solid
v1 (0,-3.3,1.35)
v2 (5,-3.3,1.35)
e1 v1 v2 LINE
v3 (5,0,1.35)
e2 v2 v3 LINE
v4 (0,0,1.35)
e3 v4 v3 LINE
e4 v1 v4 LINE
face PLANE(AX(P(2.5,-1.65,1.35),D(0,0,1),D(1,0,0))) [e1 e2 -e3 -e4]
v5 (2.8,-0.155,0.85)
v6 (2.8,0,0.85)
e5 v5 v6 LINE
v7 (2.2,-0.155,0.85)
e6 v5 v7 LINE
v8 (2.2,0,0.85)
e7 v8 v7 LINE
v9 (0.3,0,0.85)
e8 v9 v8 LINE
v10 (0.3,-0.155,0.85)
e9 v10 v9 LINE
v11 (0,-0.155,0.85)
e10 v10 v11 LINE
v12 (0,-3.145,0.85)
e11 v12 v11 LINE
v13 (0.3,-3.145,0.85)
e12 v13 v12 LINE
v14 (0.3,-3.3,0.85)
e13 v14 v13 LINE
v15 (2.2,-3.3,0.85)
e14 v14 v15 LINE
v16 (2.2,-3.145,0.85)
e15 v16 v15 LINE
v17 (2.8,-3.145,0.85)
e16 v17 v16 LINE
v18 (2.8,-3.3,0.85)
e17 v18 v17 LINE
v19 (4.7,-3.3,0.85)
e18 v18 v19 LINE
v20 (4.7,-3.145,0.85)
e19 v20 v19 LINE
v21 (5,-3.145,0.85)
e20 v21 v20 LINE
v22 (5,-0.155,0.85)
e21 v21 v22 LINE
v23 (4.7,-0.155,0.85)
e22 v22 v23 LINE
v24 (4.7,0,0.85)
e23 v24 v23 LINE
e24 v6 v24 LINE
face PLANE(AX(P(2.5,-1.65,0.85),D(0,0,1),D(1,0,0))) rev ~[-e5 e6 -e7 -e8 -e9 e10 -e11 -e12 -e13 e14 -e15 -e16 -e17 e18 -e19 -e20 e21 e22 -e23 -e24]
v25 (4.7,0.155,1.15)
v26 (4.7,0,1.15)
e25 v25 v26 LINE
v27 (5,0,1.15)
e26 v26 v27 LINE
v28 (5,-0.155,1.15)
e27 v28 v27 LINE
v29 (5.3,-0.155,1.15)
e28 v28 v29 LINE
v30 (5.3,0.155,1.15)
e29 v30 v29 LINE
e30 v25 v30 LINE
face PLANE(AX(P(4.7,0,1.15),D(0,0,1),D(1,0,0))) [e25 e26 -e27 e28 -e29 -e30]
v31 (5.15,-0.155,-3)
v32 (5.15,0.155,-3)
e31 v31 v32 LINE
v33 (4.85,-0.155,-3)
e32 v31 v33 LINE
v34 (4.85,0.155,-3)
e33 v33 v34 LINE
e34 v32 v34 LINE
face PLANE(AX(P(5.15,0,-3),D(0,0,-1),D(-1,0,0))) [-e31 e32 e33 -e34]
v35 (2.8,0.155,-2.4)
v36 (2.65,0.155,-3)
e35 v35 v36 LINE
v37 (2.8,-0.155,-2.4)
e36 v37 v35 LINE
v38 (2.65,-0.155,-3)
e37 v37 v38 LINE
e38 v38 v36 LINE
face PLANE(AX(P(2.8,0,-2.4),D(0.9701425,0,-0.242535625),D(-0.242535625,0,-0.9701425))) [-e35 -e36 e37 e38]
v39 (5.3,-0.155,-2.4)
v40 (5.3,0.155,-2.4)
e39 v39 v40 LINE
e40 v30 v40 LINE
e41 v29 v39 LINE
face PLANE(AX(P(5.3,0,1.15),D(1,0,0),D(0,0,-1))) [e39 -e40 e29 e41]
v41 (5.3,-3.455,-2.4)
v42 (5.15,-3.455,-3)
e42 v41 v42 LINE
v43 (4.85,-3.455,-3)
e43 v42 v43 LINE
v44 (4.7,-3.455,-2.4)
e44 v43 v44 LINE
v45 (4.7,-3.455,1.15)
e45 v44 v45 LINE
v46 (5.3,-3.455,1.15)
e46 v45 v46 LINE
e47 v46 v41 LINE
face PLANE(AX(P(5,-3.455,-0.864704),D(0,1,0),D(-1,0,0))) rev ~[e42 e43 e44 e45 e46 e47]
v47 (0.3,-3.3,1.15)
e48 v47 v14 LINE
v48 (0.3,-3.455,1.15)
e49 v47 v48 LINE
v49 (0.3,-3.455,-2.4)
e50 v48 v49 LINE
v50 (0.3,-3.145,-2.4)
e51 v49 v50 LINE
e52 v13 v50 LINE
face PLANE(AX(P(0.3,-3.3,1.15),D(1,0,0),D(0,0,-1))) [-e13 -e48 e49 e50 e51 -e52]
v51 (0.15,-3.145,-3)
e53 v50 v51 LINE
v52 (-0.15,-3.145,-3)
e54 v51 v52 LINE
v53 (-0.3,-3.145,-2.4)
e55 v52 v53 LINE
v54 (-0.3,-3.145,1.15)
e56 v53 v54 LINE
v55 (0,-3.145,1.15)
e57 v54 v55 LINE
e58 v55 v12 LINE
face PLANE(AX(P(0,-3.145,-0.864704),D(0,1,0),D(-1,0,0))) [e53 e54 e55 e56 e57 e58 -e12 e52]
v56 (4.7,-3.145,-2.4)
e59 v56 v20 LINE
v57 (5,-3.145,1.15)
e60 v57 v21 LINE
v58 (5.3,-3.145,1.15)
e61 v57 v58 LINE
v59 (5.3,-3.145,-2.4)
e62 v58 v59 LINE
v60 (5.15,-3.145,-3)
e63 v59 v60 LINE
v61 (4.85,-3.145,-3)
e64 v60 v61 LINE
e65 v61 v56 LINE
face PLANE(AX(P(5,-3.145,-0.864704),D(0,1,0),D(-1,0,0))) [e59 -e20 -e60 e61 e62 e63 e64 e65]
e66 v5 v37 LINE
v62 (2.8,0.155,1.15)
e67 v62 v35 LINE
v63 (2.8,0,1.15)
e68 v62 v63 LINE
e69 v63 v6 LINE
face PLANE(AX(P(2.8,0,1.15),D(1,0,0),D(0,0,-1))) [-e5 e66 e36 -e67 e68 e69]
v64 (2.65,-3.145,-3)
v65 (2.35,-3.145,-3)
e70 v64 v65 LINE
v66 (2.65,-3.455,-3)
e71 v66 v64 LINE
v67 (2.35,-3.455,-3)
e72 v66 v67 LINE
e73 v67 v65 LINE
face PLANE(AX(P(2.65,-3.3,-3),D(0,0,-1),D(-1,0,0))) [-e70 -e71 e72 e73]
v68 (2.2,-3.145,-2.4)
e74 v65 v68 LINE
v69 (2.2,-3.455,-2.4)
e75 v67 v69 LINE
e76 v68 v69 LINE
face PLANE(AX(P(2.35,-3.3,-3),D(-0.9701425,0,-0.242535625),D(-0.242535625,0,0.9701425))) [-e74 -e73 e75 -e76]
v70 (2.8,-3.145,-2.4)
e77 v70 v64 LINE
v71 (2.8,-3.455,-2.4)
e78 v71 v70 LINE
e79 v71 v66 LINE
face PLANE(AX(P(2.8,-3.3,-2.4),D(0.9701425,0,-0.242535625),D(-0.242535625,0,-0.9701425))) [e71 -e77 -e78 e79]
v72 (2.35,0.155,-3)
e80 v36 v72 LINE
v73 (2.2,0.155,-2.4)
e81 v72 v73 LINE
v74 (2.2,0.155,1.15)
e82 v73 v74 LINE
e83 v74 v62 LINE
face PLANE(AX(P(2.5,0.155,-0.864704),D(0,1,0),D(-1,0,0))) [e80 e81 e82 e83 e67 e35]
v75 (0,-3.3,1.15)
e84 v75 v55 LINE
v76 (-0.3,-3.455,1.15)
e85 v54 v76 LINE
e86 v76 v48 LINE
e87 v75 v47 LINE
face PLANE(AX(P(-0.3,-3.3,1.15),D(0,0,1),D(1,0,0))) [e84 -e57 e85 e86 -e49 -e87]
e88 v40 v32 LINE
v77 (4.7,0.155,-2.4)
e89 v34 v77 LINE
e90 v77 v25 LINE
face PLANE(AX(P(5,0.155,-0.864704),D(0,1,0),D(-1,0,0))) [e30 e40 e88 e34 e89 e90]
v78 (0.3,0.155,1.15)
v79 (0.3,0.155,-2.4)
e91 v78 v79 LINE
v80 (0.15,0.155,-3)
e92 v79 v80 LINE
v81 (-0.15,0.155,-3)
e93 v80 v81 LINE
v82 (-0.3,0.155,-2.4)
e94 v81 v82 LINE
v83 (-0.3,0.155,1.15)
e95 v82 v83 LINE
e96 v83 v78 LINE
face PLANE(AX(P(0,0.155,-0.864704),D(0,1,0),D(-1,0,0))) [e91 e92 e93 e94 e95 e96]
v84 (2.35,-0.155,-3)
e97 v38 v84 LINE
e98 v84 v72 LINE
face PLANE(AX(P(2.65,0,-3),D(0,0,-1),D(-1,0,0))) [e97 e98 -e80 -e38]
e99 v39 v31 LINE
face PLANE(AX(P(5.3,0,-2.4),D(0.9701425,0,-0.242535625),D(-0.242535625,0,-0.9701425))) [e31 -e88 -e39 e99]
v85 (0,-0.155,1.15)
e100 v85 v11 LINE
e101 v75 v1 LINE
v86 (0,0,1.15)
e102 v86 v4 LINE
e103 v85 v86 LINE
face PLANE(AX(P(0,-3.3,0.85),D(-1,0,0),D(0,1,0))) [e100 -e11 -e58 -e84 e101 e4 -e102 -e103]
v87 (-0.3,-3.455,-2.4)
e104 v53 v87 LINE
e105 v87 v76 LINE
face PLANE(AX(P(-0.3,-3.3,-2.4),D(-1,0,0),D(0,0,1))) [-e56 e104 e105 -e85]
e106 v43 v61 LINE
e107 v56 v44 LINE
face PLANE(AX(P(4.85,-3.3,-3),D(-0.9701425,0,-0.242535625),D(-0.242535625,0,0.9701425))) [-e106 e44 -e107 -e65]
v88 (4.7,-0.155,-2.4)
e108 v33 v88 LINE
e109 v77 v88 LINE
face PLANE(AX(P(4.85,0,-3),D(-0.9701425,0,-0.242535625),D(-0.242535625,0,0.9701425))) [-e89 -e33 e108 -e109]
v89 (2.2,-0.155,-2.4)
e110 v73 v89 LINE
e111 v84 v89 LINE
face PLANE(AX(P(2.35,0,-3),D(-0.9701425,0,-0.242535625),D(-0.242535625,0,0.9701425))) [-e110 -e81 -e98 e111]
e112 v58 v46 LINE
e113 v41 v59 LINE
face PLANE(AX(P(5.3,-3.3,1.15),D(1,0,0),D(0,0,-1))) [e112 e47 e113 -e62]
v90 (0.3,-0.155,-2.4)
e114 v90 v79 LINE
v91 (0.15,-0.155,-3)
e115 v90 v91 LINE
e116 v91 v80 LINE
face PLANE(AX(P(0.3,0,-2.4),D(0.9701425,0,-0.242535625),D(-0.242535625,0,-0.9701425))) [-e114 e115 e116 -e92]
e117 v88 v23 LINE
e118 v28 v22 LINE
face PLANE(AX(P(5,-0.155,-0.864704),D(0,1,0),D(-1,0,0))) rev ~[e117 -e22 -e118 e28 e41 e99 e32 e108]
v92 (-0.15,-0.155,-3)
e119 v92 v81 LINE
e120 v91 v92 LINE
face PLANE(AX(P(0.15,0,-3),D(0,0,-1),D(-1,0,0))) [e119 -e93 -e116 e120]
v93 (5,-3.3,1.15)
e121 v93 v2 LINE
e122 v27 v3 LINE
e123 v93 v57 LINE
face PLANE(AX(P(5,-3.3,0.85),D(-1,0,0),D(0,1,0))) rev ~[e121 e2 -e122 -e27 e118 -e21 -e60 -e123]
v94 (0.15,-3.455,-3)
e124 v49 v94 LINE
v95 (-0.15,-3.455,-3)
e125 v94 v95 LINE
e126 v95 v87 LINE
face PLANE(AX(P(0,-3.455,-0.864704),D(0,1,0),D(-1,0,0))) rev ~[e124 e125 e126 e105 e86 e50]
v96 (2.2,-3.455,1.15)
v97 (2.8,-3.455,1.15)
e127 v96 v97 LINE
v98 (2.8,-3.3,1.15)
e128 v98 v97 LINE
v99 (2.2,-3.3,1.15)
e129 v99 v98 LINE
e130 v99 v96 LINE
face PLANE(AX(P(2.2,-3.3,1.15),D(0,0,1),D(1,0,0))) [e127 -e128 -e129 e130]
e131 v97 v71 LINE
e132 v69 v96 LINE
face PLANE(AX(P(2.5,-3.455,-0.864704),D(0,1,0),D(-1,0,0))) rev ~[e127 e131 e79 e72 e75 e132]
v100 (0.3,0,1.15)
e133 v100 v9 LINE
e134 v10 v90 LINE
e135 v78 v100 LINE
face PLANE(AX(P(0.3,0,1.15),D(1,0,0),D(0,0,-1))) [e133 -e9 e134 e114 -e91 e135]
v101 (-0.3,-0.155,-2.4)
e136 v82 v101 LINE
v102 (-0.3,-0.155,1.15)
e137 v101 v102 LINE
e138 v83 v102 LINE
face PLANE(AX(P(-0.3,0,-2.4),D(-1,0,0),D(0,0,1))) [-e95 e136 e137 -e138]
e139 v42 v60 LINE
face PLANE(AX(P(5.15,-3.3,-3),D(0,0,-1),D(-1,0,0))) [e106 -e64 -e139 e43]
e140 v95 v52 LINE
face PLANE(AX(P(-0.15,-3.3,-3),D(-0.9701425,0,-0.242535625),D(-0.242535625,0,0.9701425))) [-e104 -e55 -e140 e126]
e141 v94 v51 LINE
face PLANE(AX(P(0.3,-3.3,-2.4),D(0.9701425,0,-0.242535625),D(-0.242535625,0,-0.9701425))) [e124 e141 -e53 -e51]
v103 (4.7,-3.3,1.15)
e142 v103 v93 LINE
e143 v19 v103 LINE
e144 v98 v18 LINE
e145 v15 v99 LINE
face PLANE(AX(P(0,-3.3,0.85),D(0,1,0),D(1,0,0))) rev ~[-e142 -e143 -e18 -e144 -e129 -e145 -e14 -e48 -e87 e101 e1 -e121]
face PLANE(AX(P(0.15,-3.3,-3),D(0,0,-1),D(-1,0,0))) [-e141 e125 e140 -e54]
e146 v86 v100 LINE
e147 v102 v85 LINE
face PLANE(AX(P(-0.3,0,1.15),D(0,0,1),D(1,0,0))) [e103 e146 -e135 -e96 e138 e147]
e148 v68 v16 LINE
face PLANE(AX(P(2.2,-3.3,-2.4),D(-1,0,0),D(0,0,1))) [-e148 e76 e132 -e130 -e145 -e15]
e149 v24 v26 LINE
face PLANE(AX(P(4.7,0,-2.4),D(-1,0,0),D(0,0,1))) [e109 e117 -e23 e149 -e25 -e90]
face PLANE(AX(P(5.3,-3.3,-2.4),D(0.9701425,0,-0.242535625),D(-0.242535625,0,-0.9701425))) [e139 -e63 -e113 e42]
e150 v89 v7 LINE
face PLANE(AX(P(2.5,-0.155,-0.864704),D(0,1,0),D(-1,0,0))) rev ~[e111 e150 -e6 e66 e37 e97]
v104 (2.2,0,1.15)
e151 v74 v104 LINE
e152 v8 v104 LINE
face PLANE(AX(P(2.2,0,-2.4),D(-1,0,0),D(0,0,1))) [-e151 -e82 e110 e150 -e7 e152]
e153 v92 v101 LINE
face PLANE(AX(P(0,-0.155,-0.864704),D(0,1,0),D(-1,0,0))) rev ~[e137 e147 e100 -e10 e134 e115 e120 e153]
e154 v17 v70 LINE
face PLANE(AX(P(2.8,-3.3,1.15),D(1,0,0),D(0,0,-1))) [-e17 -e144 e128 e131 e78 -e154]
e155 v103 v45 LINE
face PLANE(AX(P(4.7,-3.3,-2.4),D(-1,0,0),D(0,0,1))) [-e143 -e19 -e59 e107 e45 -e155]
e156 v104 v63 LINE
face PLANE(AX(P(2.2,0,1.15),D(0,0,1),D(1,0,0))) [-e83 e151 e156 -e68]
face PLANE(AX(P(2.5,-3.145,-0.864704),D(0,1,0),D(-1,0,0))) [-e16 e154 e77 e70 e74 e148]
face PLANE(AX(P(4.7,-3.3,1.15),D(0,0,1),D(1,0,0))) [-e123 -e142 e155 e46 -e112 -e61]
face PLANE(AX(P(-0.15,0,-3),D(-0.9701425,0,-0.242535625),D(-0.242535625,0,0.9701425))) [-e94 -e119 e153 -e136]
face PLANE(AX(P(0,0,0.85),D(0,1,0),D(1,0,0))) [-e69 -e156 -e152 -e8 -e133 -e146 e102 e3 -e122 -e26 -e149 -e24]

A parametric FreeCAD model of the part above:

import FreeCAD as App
import Part
import Sketcher


def add_polygon(sketch, points):
    """Adds a closed chain of lines whose ends are joined by coincident constraints."""
    first, n = sketch.GeometryCount, len(points)
    for a, b in zip(points, points[1:] + points[:1]):
        sketch.addGeometry(Part.LineSegment(App.Vector(*a, 0), App.Vector(*b, 0)), False)
    for i in range(n):
        sketch.addConstraint(Sketcher.Constraint("Coincident", first + i, 2, first + (i + 1) % n, 1))

doc = App.newDocument("Part")
body = doc.addObject("PartDesign::Body", "Body")

# Sketch on XY plane
sketch1 = body.newObject("Sketcher::SketchObject", "Sketch")
sketch1.AttachmentSupport = (doc.getObject("XY_Plane"), [""])
sketch1.MapMode = "FlatFace"
sketch1.AttachmentOffset = App.Placement(App.Vector(0, 0, 0.85), App.Rotation())
add_polygon(sketch1, [(0, 0), (0, -3.3), (5, -3.3), (5, 0)])  # lines 0-3
sketch1.addConstraint([
    Sketcher.Constraint("Vertical", 0),
    Sketcher.Constraint("Horizontal", 1),
    Sketcher.Constraint("Vertical", 2),
    Sketcher.Constraint("Horizontal", 3),
    Sketcher.Constraint("Coincident", 3, 2, -1, 1),
    Sketcher.Constraint("DistanceX", 1, 1, 1, 2, 5.0),
    Sketcher.Constraint("DistanceY", 0, 2, 0, 1, 3.3),
])
pad1 = body.newObject("PartDesign::Pad", "Pad")
pad1.Profile = sketch1
pad1.Length = 0.5

# Sketch on XZ plane
sketch2 = body.newObject("Sketcher::SketchObject", "Sketch001")
sketch2.AttachmentSupport = (doc.getObject("XZ_Plane"), [""])
sketch2.MapMode = "FlatFace"
add_polygon(sketch2, [(0.3, 1.15), (0.3, -2.4), (0.15, -3), (-0.15, -3), (-0.3, -2.4), (-0.3, 1.15)])  # lines 0-5
sketch2.addConstraint([
    Sketcher.Constraint("Vertical", 0),
    Sketcher.Constraint("Horizontal", 2),
    Sketcher.Constraint("Vertical", 4),
    Sketcher.Constraint("Horizontal", 5),
    Sketcher.Constraint("Symmetric", 0, 2, 3, 2, -2),
    Sketcher.Constraint("Equal", 1, 3),
    Sketcher.Constraint("DistanceX", 2, 2, 2, 1, 0.3),
    Sketcher.Constraint("DistanceX", 5, 1, 5, 2, 0.6),
    Sketcher.Constraint("DistanceY", 1, 2, -1, 1, 3.0),
    Sketcher.Constraint("DistanceY", 0, 2, 0, 1, 3.55),
    Sketcher.Constraint("DistanceY", 0, 2, -1, 1, 2.4),
])
pad2 = body.newObject("PartDesign::Pad", "Pad001")
pad2.Profile = sketch2
pad2.Length = 0.31
pad2.Midplane = True

# Sketch on XZ plane
sketch3 = body.newObject("Sketcher::SketchObject", "Sketch002")
sketch3.AttachmentSupport = (doc.getObject("XZ_Plane"), [""])
sketch3.MapMode = "FlatFace"
add_polygon(sketch3, [(2.8, 1.15), (2.8, -2.4), (2.65, -3), (2.35, -3), (2.2, -2.4), (2.2, 1.15)])  # lines 0-5
sketch3.addConstraint([
    Sketcher.Constraint("Vertical", 0),
    Sketcher.Constraint("Horizontal", 2),
    Sketcher.Constraint("Vertical", 4),
    Sketcher.Constraint("Horizontal", 5),
    Sketcher.Constraint("Horizontal", 0, 2, 3, 2),
    Sketcher.Constraint("Equal", 1, 3),
    Sketcher.Constraint("DistanceX", 2, 2, 2, 1, 0.3),
    Sketcher.Constraint("DistanceX", 5, 1, 5, 2, 0.6),
    Sketcher.Constraint("DistanceY", 1, 2, -1, 1, 3.0),
    Sketcher.Constraint("DistanceY", 0, 2, 0, 1, 3.55),
    Sketcher.Constraint("DistanceX", -1, 1, 0, 2, 2.8),
    Sketcher.Constraint("DistanceY", 0, 2, -1, 1, 2.4),
])
pad3 = body.newObject("PartDesign::Pad", "Pad002")
pad3.Profile = sketch3
pad3.Length = 0.31
pad3.Midplane = True

# Sketch on XZ plane
sketch4 = body.newObject("Sketcher::SketchObject", "Sketch003")
sketch4.AttachmentSupport = (doc.getObject("XZ_Plane"), [""])
sketch4.MapMode = "FlatFace"
add_polygon(sketch4, [(5.3, 1.15), (5.3, -2.4), (5.15, -3), (4.85, -3), (4.7, -2.4), (4.7, 1.15)])  # lines 0-5
sketch4.addConstraint([
    Sketcher.Constraint("Vertical", 0),
    Sketcher.Constraint("Horizontal", 2),
    Sketcher.Constraint("Vertical", 4),
    Sketcher.Constraint("Horizontal", 5),
    Sketcher.Constraint("Horizontal", 0, 2, 3, 2),
    Sketcher.Constraint("Equal", 1, 3),
    Sketcher.Constraint("DistanceX", 2, 2, 2, 1, 0.3),
    Sketcher.Constraint("DistanceX", 5, 1, 5, 2, 0.6),
    Sketcher.Constraint("DistanceY", 1, 2, -1, 1, 3.0),
    Sketcher.Constraint("DistanceY", 0, 2, 0, 1, 3.55),
    Sketcher.Constraint("DistanceX", -1, 1, 0, 2, 5.3),
    Sketcher.Constraint("DistanceY", 0, 2, -1, 1, 2.4),
])
pad4 = body.newObject("PartDesign::Pad", "Pad003")
pad4.Profile = sketch4
pad4.Length = 0.31
pad4.Midplane = True
doc.recompute()

linearpattern = body.newObject("PartDesign::LinearPattern", "LinearPattern")
linearpattern.Originals = [pad2, pad3, pad4]
linearpattern.Direction = (doc.getObject("Y_Axis"), [""])
linearpattern.Mode = "offset"
linearpattern.Offset = 3.3
linearpattern.Occurrences = 2
linearpattern.Reversed = True
body.Tip = linearpattern

doc.recompute()
